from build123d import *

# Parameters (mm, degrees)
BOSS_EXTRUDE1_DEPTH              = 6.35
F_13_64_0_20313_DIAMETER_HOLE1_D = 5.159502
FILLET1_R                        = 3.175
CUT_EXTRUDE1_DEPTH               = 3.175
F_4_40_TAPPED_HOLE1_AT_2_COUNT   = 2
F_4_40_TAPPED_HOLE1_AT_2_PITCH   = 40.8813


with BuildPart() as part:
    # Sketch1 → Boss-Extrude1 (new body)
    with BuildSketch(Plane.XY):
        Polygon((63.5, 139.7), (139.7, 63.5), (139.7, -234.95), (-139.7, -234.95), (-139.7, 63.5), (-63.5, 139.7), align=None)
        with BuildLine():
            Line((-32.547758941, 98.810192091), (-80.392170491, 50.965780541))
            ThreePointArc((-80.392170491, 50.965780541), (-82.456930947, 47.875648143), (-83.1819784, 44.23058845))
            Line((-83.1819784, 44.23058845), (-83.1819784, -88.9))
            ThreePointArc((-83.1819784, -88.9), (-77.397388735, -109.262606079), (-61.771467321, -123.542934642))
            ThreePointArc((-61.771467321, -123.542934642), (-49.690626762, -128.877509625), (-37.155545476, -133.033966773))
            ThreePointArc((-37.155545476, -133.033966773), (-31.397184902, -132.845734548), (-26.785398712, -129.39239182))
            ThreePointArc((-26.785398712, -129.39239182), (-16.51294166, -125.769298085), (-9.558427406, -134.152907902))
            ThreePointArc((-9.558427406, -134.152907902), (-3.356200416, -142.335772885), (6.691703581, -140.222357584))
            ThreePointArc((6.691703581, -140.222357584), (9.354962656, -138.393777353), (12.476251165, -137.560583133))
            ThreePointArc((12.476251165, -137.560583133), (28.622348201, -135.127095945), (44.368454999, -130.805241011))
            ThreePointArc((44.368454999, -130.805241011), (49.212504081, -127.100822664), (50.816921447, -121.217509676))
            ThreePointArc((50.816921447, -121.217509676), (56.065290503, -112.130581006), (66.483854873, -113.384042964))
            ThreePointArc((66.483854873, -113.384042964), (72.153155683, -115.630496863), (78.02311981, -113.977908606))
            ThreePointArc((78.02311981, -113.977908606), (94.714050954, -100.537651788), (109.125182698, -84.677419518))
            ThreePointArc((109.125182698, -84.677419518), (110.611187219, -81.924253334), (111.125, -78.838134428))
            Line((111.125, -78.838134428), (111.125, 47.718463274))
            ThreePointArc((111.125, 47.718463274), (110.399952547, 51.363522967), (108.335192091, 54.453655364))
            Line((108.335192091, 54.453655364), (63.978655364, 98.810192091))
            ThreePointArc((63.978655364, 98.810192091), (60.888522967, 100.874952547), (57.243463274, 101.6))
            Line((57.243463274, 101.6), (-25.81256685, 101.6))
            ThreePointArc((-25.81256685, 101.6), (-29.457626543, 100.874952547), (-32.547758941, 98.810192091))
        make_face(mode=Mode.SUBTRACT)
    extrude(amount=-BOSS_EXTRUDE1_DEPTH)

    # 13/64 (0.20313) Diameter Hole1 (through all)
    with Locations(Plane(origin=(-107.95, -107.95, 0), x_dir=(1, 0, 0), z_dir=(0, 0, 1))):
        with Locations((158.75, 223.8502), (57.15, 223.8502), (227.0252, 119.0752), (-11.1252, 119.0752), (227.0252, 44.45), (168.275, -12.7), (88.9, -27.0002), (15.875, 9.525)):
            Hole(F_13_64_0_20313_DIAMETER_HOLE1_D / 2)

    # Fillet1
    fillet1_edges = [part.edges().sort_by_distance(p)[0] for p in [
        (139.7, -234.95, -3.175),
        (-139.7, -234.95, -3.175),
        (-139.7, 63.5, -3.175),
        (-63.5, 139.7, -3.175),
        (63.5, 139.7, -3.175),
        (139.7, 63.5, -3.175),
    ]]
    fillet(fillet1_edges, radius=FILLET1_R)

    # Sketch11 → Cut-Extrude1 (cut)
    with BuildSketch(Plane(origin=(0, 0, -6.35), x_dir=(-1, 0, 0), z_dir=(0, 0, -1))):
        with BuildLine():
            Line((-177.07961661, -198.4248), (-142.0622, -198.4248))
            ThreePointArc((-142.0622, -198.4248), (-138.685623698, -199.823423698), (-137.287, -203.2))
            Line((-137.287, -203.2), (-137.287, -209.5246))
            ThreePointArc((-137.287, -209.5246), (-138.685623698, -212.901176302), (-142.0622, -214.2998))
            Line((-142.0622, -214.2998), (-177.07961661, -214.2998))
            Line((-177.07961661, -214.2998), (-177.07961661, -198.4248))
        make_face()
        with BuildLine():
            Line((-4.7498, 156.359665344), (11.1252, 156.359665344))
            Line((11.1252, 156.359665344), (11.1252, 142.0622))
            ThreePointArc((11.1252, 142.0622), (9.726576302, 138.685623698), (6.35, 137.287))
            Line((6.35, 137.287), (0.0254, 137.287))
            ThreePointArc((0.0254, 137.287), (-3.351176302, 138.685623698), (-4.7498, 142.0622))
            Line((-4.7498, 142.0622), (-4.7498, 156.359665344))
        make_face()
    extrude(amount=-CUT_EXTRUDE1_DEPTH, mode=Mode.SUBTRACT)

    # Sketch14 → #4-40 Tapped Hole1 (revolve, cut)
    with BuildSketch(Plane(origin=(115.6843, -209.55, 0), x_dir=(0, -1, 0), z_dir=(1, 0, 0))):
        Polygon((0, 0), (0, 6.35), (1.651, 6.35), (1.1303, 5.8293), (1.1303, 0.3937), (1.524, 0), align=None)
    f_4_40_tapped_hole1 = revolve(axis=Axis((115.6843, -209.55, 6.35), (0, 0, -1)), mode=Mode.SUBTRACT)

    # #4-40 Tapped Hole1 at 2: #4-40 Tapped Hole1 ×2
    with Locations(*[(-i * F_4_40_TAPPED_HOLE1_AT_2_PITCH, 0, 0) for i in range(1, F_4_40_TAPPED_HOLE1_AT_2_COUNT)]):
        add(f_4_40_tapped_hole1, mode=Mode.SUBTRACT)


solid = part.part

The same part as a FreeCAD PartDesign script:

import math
import FreeCAD as App
import Part
import Sketcher
from FreeCAD import Vector
Q = App.Units.Quantity


def edges_at(feature, points):
    """Names of the edges that pass closest to the given points."""
    edges = feature.Shape.Edges
    near = lambda p: min(range(len(edges)), key=lambda i: edges[i].distToShape(Part.Vertex(*p))[0])
    return sorted({f"Edge{near(p) + 1}" for p in points})


def add_polygon(sketch, points):
    """Adds a closed chain of lines whose ends are joined by coincident constraints."""
    first, n = sketch.GeometryCount, len(points)
    for a, b in zip(points, points[1:] + points[:1]):
        sketch.addGeometry(Part.LineSegment(App.Vector(*a, 0), App.Vector(*b, 0)), False)
    for i in range(n):
        sketch.addConstraint(Sketcher.Constraint("Coincident", first + i, 2, first + (i + 1) % n, 1))

doc = App.newDocument("Part")
body = doc.addObject("PartDesign::Body", "Body")

# Sketch on XY plane
sketch1 = body.newObject("Sketcher::SketchObject", "Sketch")
sketch1.AttachmentSupport = (doc.getObject("XY_Plane"), [""])
sketch1.MapMode = "FlatFace"
add_polygon(sketch1, [(140, 64), (64, 140), (-64, 140), (-140, 64), (-140, -235), (140, -235)])  # lines 0-5
sketch1.addGeometry(Part.ArcOfCircle(Part.Circle(Vector(-26, 92, 0), Vector(0, 0, 1), 10), math.radians(90), math.radians(135)), False)  # 6
sketch1.addGeometry(Part.LineSegment(Vector(-26, 102, 0), Vector(57, 102, 0)), False)  # 7
sketch1.addGeometry(Part.ArcOfCircle(Part.Circle(Vector(57, 92, 0), Vector(0, 0, 1), 10), math.radians(45), math.radians(90)), False)  # 8
sketch1.addGeometry(Part.LineSegment(Vector(64, 99, 0), Vector(108, 54, 0)), False)  # 9
sketch1.addGeometry(Part.ArcOfCircle(Part.Circle(Vector(102, 48, 0), Vector(0, 0, 1), 10), math.radians(0), math.radians(45)), False)  # 10
sketch1.addGeometry(Part.LineSegment(Vector(111, 48, 0), Vector(111, -79, 0)), False)  # 11
sketch1.addGeometry(Part.ArcOfCircle(Part.Circle(Vector(102, -79, 0), Vector(0, 0, 1), 10), math.radians(-38), math.radians(0)), False)  # 12
sketch1.addGeometry(Part.ArcOfCircle(Part.Circle(Vector(0, 0, 0), Vector(0, 0, 1), 138), math.radians(-55.61), math.radians(-37.81)), False)  # 13
sketch1.addGeometry(Part.ArcOfCircle(Part.Circle(Vector(73, -106, 0), Vector(0, 0, 1), 10), math.radians(-130), math.radians(-56)), False)  # 14
sketch1.addGeometry(Part.ArcOfCircle(Part.Circle(Vector(60, -121, 0), Vector(0, 0, 1), 10), math.radians(50), math.radians(183)), False)  # 15
sketch1.addGeometry(Part.ArcOfCircle(Part.Circle(Vector(41, -122, 0), Vector(0, 0, 1), 10), math.radians(-71), math.radians(3)), False)  # 16
sketch1.addGeometry(Part.ArcOfCircle(Part.Circle(Vector(0, 0, 0), Vector(0, 0, 1), 138), math.radians(-84.82), math.radians(-71.26)), False)  # 17
sketch1.addGeometry(Part.ArcOfCircle(Part.Circle(Vector(13, -147, 0), Vector(0, 0, 1), 10), math.radians(95), math.radians(134)), False)  # 18
sketch1.addGeometry(Part.ArcOfCircle(Part.Circle(Vector(0, -133, 0), Vector(0, 0, 1), 10), math.radians(-175), math.radians(-46)), False)  # 19
sketch1.addGeometry(Part.ArcOfCircle(Part.Circle(Vector(-19, -135, 0), Vector(0, 0, 1), 10), math.radians(5), math.radians(144)), False)  # 20
sketch1.addGeometry(Part.ArcOfCircle(Part.Circle(Vector(-35, -124, 0), Vector(0, 0, 1), 10), math.radians(-106), math.radians(-36)), False)  # 21
sketch1.addGeometry(Part.ArcOfCircle(Part.Circle(Vector(0, 0, 0), Vector(0, 0, 1), 138), math.radians(-116.57), math.radians(-105.6)), False)  # 22
sketch1.addGeometry(Part.ArcOfCircle(Part.Circle(Vector(-44, -89, 0), Vector(0, 0, 1), 39), math.radians(180), math.radians(243)), False)  # 23
sketch1.addGeometry(Part.LineSegment(Vector(-83, -89, 0), Vector(-83, 44, 0)), False)  # 24
sketch1.addGeometry(Part.ArcOfCircle(Part.Circle(Vector(-74, 44, 0), Vector(0, 0, 1), 10), math.radians(135), math.radians(180)), False)  # 25
sketch1.addGeometry(Part.LineSegment(Vector(-80, 51, 0), Vector(-33, 99, 0)), False)  # 26
sketch1.addConstraint([
    Sketcher.Constraint("Tangent", 6, 1, 7, 1),
    Sketcher.Constraint("Tangent", 7, 2, 8, 2),
    Sketcher.Constraint("Tangent", 8, 1, 9, 1),
    Sketcher.Constraint("Tangent", 9, 2, 10, 2),
    Sketcher.Constraint("Tangent", 10, 1, 11, 1),
    Sketcher.Constraint("Tangent", 11, 2, 12, 2),
    Sketcher.Constraint("Tangent", 12, 1, 13, 2),
    Sketcher.Constraint("Tangent", 13, 1, 14, 2),
    Sketcher.Constraint("Tangent", 14, 1, 15, 1),
    Sketcher.Constraint("Tangent", 15, 2, 16, 2),
    Sketcher.Constraint("Tangent", 16, 1, 17, 2),
    Sketcher.Constraint("Tangent", 17, 1, 18, 1),
    Sketcher.Constraint("Tangent", 18, 2, 19, 2),
    Sketcher.Constraint("Tangent", 19, 1, 20, 1),
    Sketcher.Constraint("Tangent", 20, 2, 21, 2),
    Sketcher.Constraint("Tangent", 21, 1, 22, 2),
    Sketcher.Constraint("Tangent", 22, 1, 23, 2),
    Sketcher.Constraint("Tangent", 23, 1, 24, 1),
    Sketcher.Constraint("Tangent", 24, 2, 25, 2),
    Sketcher.Constraint("Tangent", 25, 1, 26, 1),
    Sketcher.Constraint("Tangent", 26, 2, 6, 2),
    Sketcher.Constraint("Horizontal", 1),
    Sketcher.Constraint("Vertical", 3),
    Sketcher.Constraint("Horizontal", 4),
    Sketcher.Constraint("Vertical", 5),
    Sketcher.Constraint("Horizontal", 7),
    Sketcher.Constraint("Vertical", 11),
    Sketcher.Constraint("Vertical", 24),
    Sketcher.Constraint("Coincident", 13, 3, -1, 1),
    Sketcher.Constraint("Coincident", 17, 3, -1, 1),
    Sketcher.Constraint("Coincident", 22, 3, -1, 1),
    Sketcher.Constraint("Equal", 6, 8),
    Sketcher.Constraint("Equal", 8, 10),
    Sketcher.Constraint("Equal", 10, 12),
    Sketcher.Constraint("Equal", 12, 14),
    Sketcher.Constraint("Equal", 14, 15),
    Sketcher.Constraint("Equal", 15, 16),
    Sketcher.Constraint("Equal", 13, 17),
    Sketcher.Constraint("Equal", 16, 18),
    Sketcher.Constraint("Equal", 18, 20),
    Sketcher.Constraint("Equal", 19, 21),
    Sketcher.Constraint("Equal", 17, 22),
    Sketcher.Constraint("Equal", 20, 25),
    Sketcher.Constraint("Symmetric", 2, 2, 5, 2, -2),
    Sketcher.Constraint("PointOnObject", 19, 3, -2),
    Sketcher.Constraint("Perpendicular", 0, 2),
    Sketcher.Constraint("Perpendicular", 2, 9),
    Sketcher.Constraint("Perpendicular", 9, 26),
    Sketcher.Constraint("Horizontal", 8, 1, 26, 2),
    Sketcher.Constraint("DistanceX", 1, 2, 1, 1, Q("5 in")),
    Sketcher.Constraint("DistanceX", 4, 1, 4, 2, Q("11 in")),
    Sketcher.Constraint("DistanceX", -1, 1, 10, 3, Q("4 in")),
    Sketcher.Constraint("DistanceY", -1, 1, 6, 1, Q("4 in")),
    Sketcher.Constraint("Radius", 6, Q("0.375 in")),
    Sketcher.Constraint("Radius", 13, Q("5.438 in")),
    Sketcher.Constraint("DistanceX", 23, 3, 20, 3, Q("1 in")),
    Sketcher.Constraint("DistanceY", 3, 2, 19, 3, Q("4 in")),
    Sketcher.Constraint("DistanceX", 15, 3, 11, 2, Q("2 in")),
    Sketcher.Constraint("DistanceY", 3, 2, 3, 1, Q("11.75 in")),
    Sketcher.Constraint("DistanceY", 23, 3, -1, 1, Q("3.5 in")),
    Sketcher.Constraint("DistanceY", -1, 1, 0, 2, Q("5.5 in")),
    Sketcher.Constraint("DistanceY", 19, 3, 15, 3, Q("0.5 in")),
    Sketcher.Constraint("DistanceX", 20, 3, -1, 1, Q("0.75 in")),
    Sketcher.Constraint("DistanceY", 20, 3, -1, 1, Q("5.313 in")),
    Sketcher.Constraint("DistanceX", 7, 1, 7, 2, Q("83.05603 mm")),
    Sketcher.Constraint("DistanceY", 24, 1, 24, 2, Q("133.130588 mm")),
])
pad1 = body.newObject("PartDesign::Pad", "Pad")
pad1.Profile = sketch1
pad1.Length = Q("0.25 in")
pad1.Reversed = True

# Sketch on XY plane
sketch2 = body.newObject("Sketcher::SketchObject", "Sketch001")
sketch2.AttachmentSupport = (doc.getObject("XY_Plane"), [""])
sketch2.MapMode = "FlatFace"
sketch2.addGeometry([
    Part.Circle(Vector(50.8, 115.9, 0), Vector(0, 0, 1), 2.6),  # 0
    Part.Circle(Vector(-50.8, 115.9, 0), Vector(0, 0, 1), 2.6),  # 1
    Part.Circle(Vector(119.1, 11.1, 0), Vector(0, 0, 1), 2.6),  # 2
    Part.Circle(Vector(-119.1, 11.1, 0), Vector(0, 0, 1), 2.6),  # 3
    Part.Circle(Vector(119.1, -63.5, 0), Vector(0, 0, 1), 2.6),  # 4
    Part.Circle(Vector(60.3, -120.7, 0), Vector(0, 0, 1), 2.6),  # 5
    Part.Circle(Vector(-19.1, -135, 0), Vector(0, 0, 1), 2.6),  # 6
    Part.Circle(Vector(-92.1, -98.4, 0), Vector(0, 0, 1), 2.6),  # 7
], False)
sketch2.addConstraint([
    Sketcher.Constraint("Equal", 0, 1),
    Sketcher.Constraint("Equal", 1, 2),
    Sketcher.Constraint("Equal", 2, 3),
    Sketcher.Constraint("Equal", 3, 4),
    Sketcher.Constraint("Equal", 4, 5),
    Sketcher.Constraint("Equal", 5, 6),
    Sketcher.Constraint("Equal", 6, 7),
    Sketcher.Constraint("Symmetric", 0, 3, 1, 3, -2),
    Sketcher.Constraint("Symmetric", 2, 3, 3, 3, -2),
    Sketcher.Constraint("Vertical", 2, 3, 4, 3),
    Sketcher.Constraint("DistanceX", -1, 1, 0, 3, Q("2 in")),
    Sketcher.Constraint("DistanceX", 7, 3, 5, 3, Q("6 in")),
    Sketcher.Constraint("DistanceY", 4, 3, -1, 1, Q("2.5 in")),
    Sketcher.Constraint("Diameter", 0, Q("5.159502 mm")),
    Sketcher.Constraint("DistanceY", 5, 3, -1, 1, Q("4.75 in")),
    Sketcher.Constraint("DistanceX", 6, 3, -1, 1, Q("0.75 in")),
    Sketcher.Constraint("DistanceY", -1, 1, 0, 3, Q("4.563 in")),
    Sketcher.Constraint("DistanceX", -1, 1, 2, 3, Q("4.688 in")),
    Sketcher.Constraint("DistanceY", -1, 1, 2, 3, Q("0.438 in")),
    Sketcher.Constraint("DistanceX", -1, 1, 5, 3, Q("2.375 in")),
    Sketcher.Constraint("DistanceY", 6, 3, -1, 1, Q("5.313 in")),
    Sketcher.Constraint("DistanceY", 7, 3, -1, 1, Q("3.875 in")),
])
doc.recompute()
hole = body.newObject("PartDesign::Hole", "Hole")
hole.Profile = sketch2
hole.ThreadType = "None"
hole.Diameter = 5.159502
hole.DepthType = "ThroughAll"
doc.recompute()

fillet = body.newObject("PartDesign::Fillet", "Fillet")
fillet.Base = (hole, edges_at(hole, [
    (139.7, -234.95, -3.175),
    (-139.7, -234.95, -3.175),
    (-139.7, 63.5, -3.175),
    (-63.5, 139.7, -3.175),
    (63.5, 139.7, -3.175),
    (139.7, 63.5, -3.175),
]))
fillet.Radius = Q("0.125 in")

# Sketch on XY plane
sketch3 = body.newObject("Sketcher::SketchObject", "Sketch002")
sketch3.AttachmentSupport = (doc.getObject("XY_Plane"), [""])
sketch3.MapMode = "FlatFace"
sketch3.AttachmentOffset = App.Placement(Vector(0, 0, -0.25 * 25.4), App.Rotation())
sketch3.addGeometry([
    Part.LineSegment(Vector(142.1, -198.4, 0), Vector(177.1, -198.4, 0)),  # 0
    Part.LineSegment(Vector(177.1, -198.4, 0), Vector(177.1, -214.3, 0)),  # 1
    Part.LineSegment(Vector(177.1, -214.3, 0), Vector(142.1, -214.3, 0)),  # 2
    Part.ArcOfCircle(Part.Circle(Vector(142.1, -209.5, 0), Vector(0, 0, 1), 4.8), math.radians(180), math.radians(270)),  # 3
    Part.LineSegment(Vector(137.3, -209.5, 0), Vector(137.3, -203.2, 0)),  # 4
    Part.ArcOfCircle(Part.Circle(Vector(142.1, -203.2, 0), Vector(0, 0, 1), 4.8), math.radians(90), math.radians(180)),  # 5
    Part.LineSegment(Vector(-11.1, 156.4, 0), Vector(4.7, 156.4, 0)),  # 6
    Part.LineSegment(Vector(4.7, 156.4, 0), Vector(4.7, 142.1, 0)),  # 7
    Part.ArcOfCircle(Part.Circle(Vector(0, 142.1, 0), Vector(0, 0, 1), 4.8), math.radians(-90), math.radians(0)),  # 8
    Part.LineSegment(Vector(0, 137.3, 0), Vector(-6.3, 137.3, 0)),  # 9
    Part.ArcOfCircle(Part.Circle(Vector(-6.4, 142.1, 0), Vector(0, 0, 1), 4.8), math.radians(180), math.radians(270)),  # 10
    Part.LineSegment(Vector(-11.1, 142.1, 0), Vector(-11.1, 156.4, 0)),  # 11
], False)
sketch3.addConstraint([
    Sketcher.Constraint("Coincident", 0, 2, 1, 1),
    Sketcher.Constraint("Coincident", 1, 2, 2, 1),
    Sketcher.Constraint("Tangent", 2, 2, 3, 2),
    Sketcher.Constraint("Tangent", 3, 1, 4, 1),
    Sketcher.Constraint("Tangent", 4, 2, 5, 2),
    Sketcher.Constraint("Tangent", 5, 1, 0, 1),
    Sketcher.Constraint("Coincident", 6, 2, 7, 1),
    Sketcher.Constraint("Tangent", 7, 2, 8, 2),
    Sketcher.Constraint("Tangent", 8, 1, 9, 1),
    Sketcher.Constraint("Tangent", 9, 2, 10, 2),
    Sketcher.Constraint("Tangent", 10, 1, 11, 1),
    Sketcher.Constraint("Coincident", 11, 2, 6, 1),
    Sketcher.Constraint("Horizontal", 0),
    Sketcher.Constraint("Vertical", 1),
    Sketcher.Constraint("Horizontal", 2),
    Sketcher.Constraint("Vertical", 4),
    Sketcher.Constraint("Horizontal", 6),
    Sketcher.Constraint("Vertical", 7),
    Sketcher.Constraint("Horizontal", 9),
    Sketcher.Constraint("Vertical", 11),
    Sketcher.Constraint("Equal", 3, 5),
    Sketcher.Constraint("Equal", 5, 8),
    Sketcher.Constraint("Equal", 8, 10),
    Sketcher.Constraint("Equal", 6, 1),
    Sketcher.Constraint("DistanceY", 5, 3, -1, 1, Q("8 in")),
    Sketcher.Constraint("Radius", 3, Q("0.188 in")),
    Sketcher.Constraint("DistanceX", 6, 1, 6, 2, Q("0.625 in")),
    Sketcher.Constraint("DistanceX", 10, 3, -1, 1, Q("0.25 in")),
    Sketcher.Constraint("DistanceY", 1, 2, 8, 3, Q("14.03 in")),
    Sketcher.Constraint("DistanceX", -1, 1, 3, 3, Q("5.593 in")),
    Sketcher.Constraint("DistanceX", 0, 1, 0, 2, Q("35.017417 mm")),
    Sketcher.Constraint("DistanceY", 7, 2, 7, 1, Q("14.297465 mm")),
])
pocket1 = body.newObject("PartDesign::Pocket", "Pocket")
pocket1.Profile = sketch3
pocket1.Length = Q("0.125 in")
pocket1.Reversed = True

# Sketch on YZ plane
sketch4 = body.newObject("Sketcher::SketchObject", "Sketch003")
sketch4.AttachmentSupport = (doc.getObject("YZ_Plane"), [""])
sketch4.MapMode = "FlatFace"
sketch4.AttachmentOffset = App.Placement(Vector(0, 0, 4.5545 * 25.4), App.Rotation())
add_polygon(sketch4, [(-209.6, -6.3), (-209.6, 0), (-211.1, 0), (-210.7, -0.4), (-210.7, -5.8), (-211.2, -6.3)])  # lines 0-5
sketch4.addGeometry(Part.LineSegment(Vector(-209.6, 0, 0), Vector(-209.6, -6.3, 0)), True)  # axis
sketch4.addConstraint([
    Sketcher.Constraint("Vertical", 0),
    Sketcher.Constraint("Horizontal", 1),
    Sketcher.Constraint("Vertical", 3),
    Sketcher.Constraint("Horizontal", 5),
    Sketcher.Constraint("Vertical", 6),
    Sketcher.Constraint("Coincident", 6, 1, 0, 2),
    Sketcher.Constraint("PointOnObject", 0, 2, -1),
    Sketcher.Constraint("Perpendicular", 2, 4),
    Sketcher.Constraint("Horizontal", 4, 2, 6, 2),
    Sketcher.Constraint("Angle", 2, Q("-45 deg")),
    Sketcher.Constraint("DistanceX", 1, 2, 1, 1, Q("0.06 in")),
    Sketcher.Constraint("DistanceY", 0, 1, 0, 2, Q("0.25 in")),
    Sketcher.Constraint("DistanceX", 5, 1, 5, 2, Q("0.065 in")),
    Sketcher.Constraint("DistanceY", 3, 2, 3, 1, Q("0.214 in")),
    Sketcher.Constraint("DistanceX", 0, 2, -1, 1, Q("8.25 in")),
])
groove = body.newObject("PartDesign::Groove", "Groove")
groove.Profile = sketch4
groove.ReferenceAxis = (sketch4, ["Axis0"])
groove.Angle = 360
doc.recompute()

linearpattern = body.newObject("PartDesign::LinearPattern", "LinearPattern")
linearpattern.Originals = [groove]
linearpattern.Direction = (doc.getObject("X_Axis"), [""])
linearpattern.Mode = "offset"
linearpattern.Offset = Q("1.6095 in")
linearpattern.Occurrences = 2
linearpattern.Reversed = True
body.Tip = linearpattern

doc.recompute()
